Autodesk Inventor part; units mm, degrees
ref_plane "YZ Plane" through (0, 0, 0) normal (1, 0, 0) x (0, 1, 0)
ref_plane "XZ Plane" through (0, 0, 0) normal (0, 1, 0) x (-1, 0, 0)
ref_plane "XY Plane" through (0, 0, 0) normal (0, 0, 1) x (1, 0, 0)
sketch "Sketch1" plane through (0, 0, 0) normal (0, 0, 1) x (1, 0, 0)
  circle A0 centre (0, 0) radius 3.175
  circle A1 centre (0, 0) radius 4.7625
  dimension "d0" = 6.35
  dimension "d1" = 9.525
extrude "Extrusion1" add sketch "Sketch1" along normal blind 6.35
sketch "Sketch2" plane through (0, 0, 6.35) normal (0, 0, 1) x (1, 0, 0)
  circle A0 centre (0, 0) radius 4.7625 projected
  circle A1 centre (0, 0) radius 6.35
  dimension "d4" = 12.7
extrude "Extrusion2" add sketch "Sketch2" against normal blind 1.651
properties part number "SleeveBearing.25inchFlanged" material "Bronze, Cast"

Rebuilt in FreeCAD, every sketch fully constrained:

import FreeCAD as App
import Part
import Sketcher
from FreeCAD import Vector
Q = App.Units.Quantity

doc = App.newDocument("Part")
params = doc.addObject("Spreadsheet::Sheet", "Params")
for row, (alias, value) in enumerate([
    ("sketch1_diameter", "0.25 in"),
    ("sketch1_diameter2", "0.375 in"),
    ("pad1_length", "0.25 in"),
    ("sketch2_diameter", "0.5 in"),
    ("sketch2_diameter2", "0.375 in"),
    ("pad2_length", "0.065 in"),
], start=1):
    params.set(f"A{row}", alias)
    params.set(f"B{row}", "=" + value)
    params.setAlias(f"B{row}", alias)

body = doc.addObject("PartDesign::Body", "Body")

# Sketch on XY plane
sketch1 = doc.addObject("Sketcher::SketchObject", "Sketch")
body.addObject(sketch1)
sketch1.AttachmentSupport = (doc.XY_Plane, [""])
sketch1.MapMode = "FlatFace"
sketch1.addGeometry([
    Part.Circle(Vector(0, 0, 0), Vector(0, 0, 1), 4.8),
    Part.Circle(Vector(0, 0, 0), Vector(0, 0, 1), 3.2),
], False)
sketch1.addConstraint([
    Sketcher.Constraint("Coincident", 0, 3, -1, 1),
    Sketcher.Constraint("Coincident", 1, 3, -1, 1),
    Sketcher.Constraint("Diameter", 1, Q("0.25 in")),
    Sketcher.Constraint("Diameter", 0, Q("0.375 in")),
])
sketch1.setExpression("Constraints[2]", "Params.sketch1_diameter")
sketch1.setExpression("Constraints[3]", "Params.sketch1_diameter2")
pad1 = doc.addObject("PartDesign::Pad", "Pad")
body.addObject(pad1)
pad1.Profile = sketch1
pad1.setExpression("Length", "Params.pad1_length")

# Sketch on XY plane
sketch2 = doc.addObject("Sketcher::SketchObject", "Sketch001")
body.addObject(sketch2)
sketch2.AttachmentSupport = (doc.XY_Plane, [""])
sketch2.MapMode = "FlatFace"
sketch2.AttachmentOffset = App.Placement(Vector(0, 0, 0.25 * 25.4), App.Rotation())
sketch2.addGeometry([
    Part.Circle(Vector(0, 0, 0), Vector(0, 0, 1), 6.3),
    Part.Circle(Vector(0, 0, 0), Vector(0, 0, 1), 4.8),
], False)
sketch2.addConstraint([
    Sketcher.Constraint("Coincident", 0, 3, -1, 1),
    Sketcher.Constraint("Coincident", 1, 3, -1, 1),
    Sketcher.Constraint("Diameter", 0, Q("0.5 in")),
    Sketcher.Constraint("Diameter", 1, Q("0.375 in")),
])
sketch2.setExpression("Constraints[2]", "Params.sketch2_diameter")
sketch2.setExpression("Constraints[3]", "Params.sketch2_diameter2")
pad2 = doc.addObject("PartDesign::Pad", "Pad001")
body.addObject(pad2)
pad2.Profile = sketch2
pad2.setExpression("Length", "Params.pad2_length")
pad2.Reversed = True

doc.recompute()
